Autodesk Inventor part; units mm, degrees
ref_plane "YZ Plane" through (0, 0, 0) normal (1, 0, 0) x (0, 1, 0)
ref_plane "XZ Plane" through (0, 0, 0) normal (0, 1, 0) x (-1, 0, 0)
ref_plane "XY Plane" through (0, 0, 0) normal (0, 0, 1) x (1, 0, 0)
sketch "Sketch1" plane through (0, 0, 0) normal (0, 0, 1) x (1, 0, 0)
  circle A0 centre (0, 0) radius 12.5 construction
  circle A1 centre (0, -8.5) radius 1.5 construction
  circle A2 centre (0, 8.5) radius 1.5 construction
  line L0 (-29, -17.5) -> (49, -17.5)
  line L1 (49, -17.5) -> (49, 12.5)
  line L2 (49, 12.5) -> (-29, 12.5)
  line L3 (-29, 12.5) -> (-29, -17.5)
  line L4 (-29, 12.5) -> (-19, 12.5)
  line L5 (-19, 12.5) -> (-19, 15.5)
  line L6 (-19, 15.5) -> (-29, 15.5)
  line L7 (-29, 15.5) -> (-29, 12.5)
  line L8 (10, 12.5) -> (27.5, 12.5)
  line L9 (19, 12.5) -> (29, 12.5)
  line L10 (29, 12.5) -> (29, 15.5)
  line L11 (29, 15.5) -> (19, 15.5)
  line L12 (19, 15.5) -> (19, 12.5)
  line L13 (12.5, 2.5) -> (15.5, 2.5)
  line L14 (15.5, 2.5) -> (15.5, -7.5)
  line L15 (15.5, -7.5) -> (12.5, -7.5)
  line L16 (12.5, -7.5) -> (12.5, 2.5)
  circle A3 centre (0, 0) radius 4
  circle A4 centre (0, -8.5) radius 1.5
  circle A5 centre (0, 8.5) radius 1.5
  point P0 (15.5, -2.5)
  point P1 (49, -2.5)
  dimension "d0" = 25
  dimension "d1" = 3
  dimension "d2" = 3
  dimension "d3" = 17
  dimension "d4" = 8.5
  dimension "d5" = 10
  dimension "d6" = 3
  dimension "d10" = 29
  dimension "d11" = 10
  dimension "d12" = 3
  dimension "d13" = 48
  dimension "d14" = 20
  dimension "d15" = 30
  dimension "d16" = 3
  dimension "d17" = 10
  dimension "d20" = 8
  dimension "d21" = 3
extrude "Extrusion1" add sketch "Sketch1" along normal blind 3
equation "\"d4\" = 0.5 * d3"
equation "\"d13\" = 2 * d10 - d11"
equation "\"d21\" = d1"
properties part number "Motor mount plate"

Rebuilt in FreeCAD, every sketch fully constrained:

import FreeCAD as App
import Part
import Sketcher
Q = App.Units.Quantity


def add_polygon(sketch, points):
    """Adds a closed chain of lines whose ends are joined by coincident constraints."""
    first, n = sketch.GeometryCount, len(points)
    for a, b in zip(points, points[1:] + points[:1]):
        sketch.addGeometry(Part.LineSegment(App.Vector(*a, 0), App.Vector(*b, 0)), False)
    for i in range(n):
        sketch.addConstraint(Sketcher.Constraint("Coincident", first + i, 2, first + (i + 1) % n, 1))

doc = App.newDocument("Part")
body = doc.addObject("PartDesign::Body", "Body")

# Sketch on XY plane
sketch1 = doc.addObject("Sketcher::SketchObject", "Sketch")
body.addObject(sketch1)
sketch1.AttachmentSupport = (doc.XY_Plane, [""])
sketch1.MapMode = "FlatFace"
add_polygon(sketch1, [(-29, -17.5), (49, -17.5), (49, 12.5), (29, 12.5), (29, 15.5), (19, 15.5), (19, 12.5), (-19, 12.5), (-19, 15.5), (-29, 15.5)])  # lines 0-9
sketch1.addGeometry(Part.Circle(App.Vector(0, -8.5, 0), App.Vector(0, 0, 1), 1.5), False)  # 10
add_polygon(sketch1, [(12.5, -7.5), (12.5, 2.5), (15.5, 2.5), (15.5, -7.5)])  # lines 11-14
sketch1.addGeometry(Part.Circle(App.Vector(0, 0, 0), App.Vector(0, 0, 1), 4), False)  # 15
sketch1.addGeometry(Part.Circle(App.Vector(0, 8.5, 0), App.Vector(0, 0, 1), 1.5), False)  # 16
sketch1.addConstraint([
    Sketcher.Constraint("Horizontal", 0),
    Sketcher.Constraint("Vertical", 1),
    Sketcher.Constraint("Horizontal", 2),
    Sketcher.Constraint("Vertical", 3),
    Sketcher.Constraint("Horizontal", 4),
    Sketcher.Constraint("Vertical", 5),
    Sketcher.Constraint("Horizontal", 6),
    Sketcher.Constraint("Vertical", 7),
    Sketcher.Constraint("Horizontal", 8),
    Sketcher.Constraint("Vertical", 9),
    Sketcher.Constraint("Vertical", 11),
    Sketcher.Constraint("Horizontal", 12),
    Sketcher.Constraint("Vertical", 13),
    Sketcher.Constraint("Horizontal", 14),
    Sketcher.Constraint("Coincident", 15, 3, -1, 1),
    Sketcher.Constraint("Equal", 10, 16),
    Sketcher.Constraint("Symmetric", 10, 3, 16, 3, -1, 1),
    Sketcher.Constraint("Symmetric", 4, 2, 7, 2, -2),
    Sketcher.Constraint("PointOnObject", 10, 3, -2),
    Sketcher.Constraint("Horizontal", 2, 2, 5, 2),
    Sketcher.Constraint("Equal", 4, 8),
    Sketcher.Constraint("Equal", 14, 3),
    Sketcher.Constraint("Equal", 8, 11),
    Sketcher.Constraint("Diameter", 10, Q("3 mm")),
    Sketcher.Constraint("Diameter", 15, Q("8 mm")),
    Sketcher.Constraint("DistanceX", 2, 2, 2, 1, Q("20 mm")),
    Sketcher.Constraint("DistanceX", 4, 2, 4, 1, Q("10 mm")),
    Sketcher.Constraint("DistanceX", 12, 1, 12, 2, Q("3 mm")),
    Sketcher.Constraint("DistanceY", 1, 1, 1, 2, Q("30 mm")),
    Sketcher.Constraint("DistanceX", -1, 1, 2, 2, Q("29 mm")),
    Sketcher.Constraint("DistanceY", 10, 3, 16, 3, Q("17 mm")),
    Sketcher.Constraint("DistanceY", 11, 2, 5, 2, Q("10 mm")),
    Sketcher.Constraint("DistanceY", 0, 2, 10, 3, Q("9 mm")),
    Sketcher.Constraint("DistanceX", -1, 1, 11, 2, Q("12.5 mm")),
])
pad1 = doc.addObject("PartDesign::Pad", "Pad")
body.addObject(pad1)
pad1.Profile = sketch1
pad1.Length = 3

doc.recompute()
